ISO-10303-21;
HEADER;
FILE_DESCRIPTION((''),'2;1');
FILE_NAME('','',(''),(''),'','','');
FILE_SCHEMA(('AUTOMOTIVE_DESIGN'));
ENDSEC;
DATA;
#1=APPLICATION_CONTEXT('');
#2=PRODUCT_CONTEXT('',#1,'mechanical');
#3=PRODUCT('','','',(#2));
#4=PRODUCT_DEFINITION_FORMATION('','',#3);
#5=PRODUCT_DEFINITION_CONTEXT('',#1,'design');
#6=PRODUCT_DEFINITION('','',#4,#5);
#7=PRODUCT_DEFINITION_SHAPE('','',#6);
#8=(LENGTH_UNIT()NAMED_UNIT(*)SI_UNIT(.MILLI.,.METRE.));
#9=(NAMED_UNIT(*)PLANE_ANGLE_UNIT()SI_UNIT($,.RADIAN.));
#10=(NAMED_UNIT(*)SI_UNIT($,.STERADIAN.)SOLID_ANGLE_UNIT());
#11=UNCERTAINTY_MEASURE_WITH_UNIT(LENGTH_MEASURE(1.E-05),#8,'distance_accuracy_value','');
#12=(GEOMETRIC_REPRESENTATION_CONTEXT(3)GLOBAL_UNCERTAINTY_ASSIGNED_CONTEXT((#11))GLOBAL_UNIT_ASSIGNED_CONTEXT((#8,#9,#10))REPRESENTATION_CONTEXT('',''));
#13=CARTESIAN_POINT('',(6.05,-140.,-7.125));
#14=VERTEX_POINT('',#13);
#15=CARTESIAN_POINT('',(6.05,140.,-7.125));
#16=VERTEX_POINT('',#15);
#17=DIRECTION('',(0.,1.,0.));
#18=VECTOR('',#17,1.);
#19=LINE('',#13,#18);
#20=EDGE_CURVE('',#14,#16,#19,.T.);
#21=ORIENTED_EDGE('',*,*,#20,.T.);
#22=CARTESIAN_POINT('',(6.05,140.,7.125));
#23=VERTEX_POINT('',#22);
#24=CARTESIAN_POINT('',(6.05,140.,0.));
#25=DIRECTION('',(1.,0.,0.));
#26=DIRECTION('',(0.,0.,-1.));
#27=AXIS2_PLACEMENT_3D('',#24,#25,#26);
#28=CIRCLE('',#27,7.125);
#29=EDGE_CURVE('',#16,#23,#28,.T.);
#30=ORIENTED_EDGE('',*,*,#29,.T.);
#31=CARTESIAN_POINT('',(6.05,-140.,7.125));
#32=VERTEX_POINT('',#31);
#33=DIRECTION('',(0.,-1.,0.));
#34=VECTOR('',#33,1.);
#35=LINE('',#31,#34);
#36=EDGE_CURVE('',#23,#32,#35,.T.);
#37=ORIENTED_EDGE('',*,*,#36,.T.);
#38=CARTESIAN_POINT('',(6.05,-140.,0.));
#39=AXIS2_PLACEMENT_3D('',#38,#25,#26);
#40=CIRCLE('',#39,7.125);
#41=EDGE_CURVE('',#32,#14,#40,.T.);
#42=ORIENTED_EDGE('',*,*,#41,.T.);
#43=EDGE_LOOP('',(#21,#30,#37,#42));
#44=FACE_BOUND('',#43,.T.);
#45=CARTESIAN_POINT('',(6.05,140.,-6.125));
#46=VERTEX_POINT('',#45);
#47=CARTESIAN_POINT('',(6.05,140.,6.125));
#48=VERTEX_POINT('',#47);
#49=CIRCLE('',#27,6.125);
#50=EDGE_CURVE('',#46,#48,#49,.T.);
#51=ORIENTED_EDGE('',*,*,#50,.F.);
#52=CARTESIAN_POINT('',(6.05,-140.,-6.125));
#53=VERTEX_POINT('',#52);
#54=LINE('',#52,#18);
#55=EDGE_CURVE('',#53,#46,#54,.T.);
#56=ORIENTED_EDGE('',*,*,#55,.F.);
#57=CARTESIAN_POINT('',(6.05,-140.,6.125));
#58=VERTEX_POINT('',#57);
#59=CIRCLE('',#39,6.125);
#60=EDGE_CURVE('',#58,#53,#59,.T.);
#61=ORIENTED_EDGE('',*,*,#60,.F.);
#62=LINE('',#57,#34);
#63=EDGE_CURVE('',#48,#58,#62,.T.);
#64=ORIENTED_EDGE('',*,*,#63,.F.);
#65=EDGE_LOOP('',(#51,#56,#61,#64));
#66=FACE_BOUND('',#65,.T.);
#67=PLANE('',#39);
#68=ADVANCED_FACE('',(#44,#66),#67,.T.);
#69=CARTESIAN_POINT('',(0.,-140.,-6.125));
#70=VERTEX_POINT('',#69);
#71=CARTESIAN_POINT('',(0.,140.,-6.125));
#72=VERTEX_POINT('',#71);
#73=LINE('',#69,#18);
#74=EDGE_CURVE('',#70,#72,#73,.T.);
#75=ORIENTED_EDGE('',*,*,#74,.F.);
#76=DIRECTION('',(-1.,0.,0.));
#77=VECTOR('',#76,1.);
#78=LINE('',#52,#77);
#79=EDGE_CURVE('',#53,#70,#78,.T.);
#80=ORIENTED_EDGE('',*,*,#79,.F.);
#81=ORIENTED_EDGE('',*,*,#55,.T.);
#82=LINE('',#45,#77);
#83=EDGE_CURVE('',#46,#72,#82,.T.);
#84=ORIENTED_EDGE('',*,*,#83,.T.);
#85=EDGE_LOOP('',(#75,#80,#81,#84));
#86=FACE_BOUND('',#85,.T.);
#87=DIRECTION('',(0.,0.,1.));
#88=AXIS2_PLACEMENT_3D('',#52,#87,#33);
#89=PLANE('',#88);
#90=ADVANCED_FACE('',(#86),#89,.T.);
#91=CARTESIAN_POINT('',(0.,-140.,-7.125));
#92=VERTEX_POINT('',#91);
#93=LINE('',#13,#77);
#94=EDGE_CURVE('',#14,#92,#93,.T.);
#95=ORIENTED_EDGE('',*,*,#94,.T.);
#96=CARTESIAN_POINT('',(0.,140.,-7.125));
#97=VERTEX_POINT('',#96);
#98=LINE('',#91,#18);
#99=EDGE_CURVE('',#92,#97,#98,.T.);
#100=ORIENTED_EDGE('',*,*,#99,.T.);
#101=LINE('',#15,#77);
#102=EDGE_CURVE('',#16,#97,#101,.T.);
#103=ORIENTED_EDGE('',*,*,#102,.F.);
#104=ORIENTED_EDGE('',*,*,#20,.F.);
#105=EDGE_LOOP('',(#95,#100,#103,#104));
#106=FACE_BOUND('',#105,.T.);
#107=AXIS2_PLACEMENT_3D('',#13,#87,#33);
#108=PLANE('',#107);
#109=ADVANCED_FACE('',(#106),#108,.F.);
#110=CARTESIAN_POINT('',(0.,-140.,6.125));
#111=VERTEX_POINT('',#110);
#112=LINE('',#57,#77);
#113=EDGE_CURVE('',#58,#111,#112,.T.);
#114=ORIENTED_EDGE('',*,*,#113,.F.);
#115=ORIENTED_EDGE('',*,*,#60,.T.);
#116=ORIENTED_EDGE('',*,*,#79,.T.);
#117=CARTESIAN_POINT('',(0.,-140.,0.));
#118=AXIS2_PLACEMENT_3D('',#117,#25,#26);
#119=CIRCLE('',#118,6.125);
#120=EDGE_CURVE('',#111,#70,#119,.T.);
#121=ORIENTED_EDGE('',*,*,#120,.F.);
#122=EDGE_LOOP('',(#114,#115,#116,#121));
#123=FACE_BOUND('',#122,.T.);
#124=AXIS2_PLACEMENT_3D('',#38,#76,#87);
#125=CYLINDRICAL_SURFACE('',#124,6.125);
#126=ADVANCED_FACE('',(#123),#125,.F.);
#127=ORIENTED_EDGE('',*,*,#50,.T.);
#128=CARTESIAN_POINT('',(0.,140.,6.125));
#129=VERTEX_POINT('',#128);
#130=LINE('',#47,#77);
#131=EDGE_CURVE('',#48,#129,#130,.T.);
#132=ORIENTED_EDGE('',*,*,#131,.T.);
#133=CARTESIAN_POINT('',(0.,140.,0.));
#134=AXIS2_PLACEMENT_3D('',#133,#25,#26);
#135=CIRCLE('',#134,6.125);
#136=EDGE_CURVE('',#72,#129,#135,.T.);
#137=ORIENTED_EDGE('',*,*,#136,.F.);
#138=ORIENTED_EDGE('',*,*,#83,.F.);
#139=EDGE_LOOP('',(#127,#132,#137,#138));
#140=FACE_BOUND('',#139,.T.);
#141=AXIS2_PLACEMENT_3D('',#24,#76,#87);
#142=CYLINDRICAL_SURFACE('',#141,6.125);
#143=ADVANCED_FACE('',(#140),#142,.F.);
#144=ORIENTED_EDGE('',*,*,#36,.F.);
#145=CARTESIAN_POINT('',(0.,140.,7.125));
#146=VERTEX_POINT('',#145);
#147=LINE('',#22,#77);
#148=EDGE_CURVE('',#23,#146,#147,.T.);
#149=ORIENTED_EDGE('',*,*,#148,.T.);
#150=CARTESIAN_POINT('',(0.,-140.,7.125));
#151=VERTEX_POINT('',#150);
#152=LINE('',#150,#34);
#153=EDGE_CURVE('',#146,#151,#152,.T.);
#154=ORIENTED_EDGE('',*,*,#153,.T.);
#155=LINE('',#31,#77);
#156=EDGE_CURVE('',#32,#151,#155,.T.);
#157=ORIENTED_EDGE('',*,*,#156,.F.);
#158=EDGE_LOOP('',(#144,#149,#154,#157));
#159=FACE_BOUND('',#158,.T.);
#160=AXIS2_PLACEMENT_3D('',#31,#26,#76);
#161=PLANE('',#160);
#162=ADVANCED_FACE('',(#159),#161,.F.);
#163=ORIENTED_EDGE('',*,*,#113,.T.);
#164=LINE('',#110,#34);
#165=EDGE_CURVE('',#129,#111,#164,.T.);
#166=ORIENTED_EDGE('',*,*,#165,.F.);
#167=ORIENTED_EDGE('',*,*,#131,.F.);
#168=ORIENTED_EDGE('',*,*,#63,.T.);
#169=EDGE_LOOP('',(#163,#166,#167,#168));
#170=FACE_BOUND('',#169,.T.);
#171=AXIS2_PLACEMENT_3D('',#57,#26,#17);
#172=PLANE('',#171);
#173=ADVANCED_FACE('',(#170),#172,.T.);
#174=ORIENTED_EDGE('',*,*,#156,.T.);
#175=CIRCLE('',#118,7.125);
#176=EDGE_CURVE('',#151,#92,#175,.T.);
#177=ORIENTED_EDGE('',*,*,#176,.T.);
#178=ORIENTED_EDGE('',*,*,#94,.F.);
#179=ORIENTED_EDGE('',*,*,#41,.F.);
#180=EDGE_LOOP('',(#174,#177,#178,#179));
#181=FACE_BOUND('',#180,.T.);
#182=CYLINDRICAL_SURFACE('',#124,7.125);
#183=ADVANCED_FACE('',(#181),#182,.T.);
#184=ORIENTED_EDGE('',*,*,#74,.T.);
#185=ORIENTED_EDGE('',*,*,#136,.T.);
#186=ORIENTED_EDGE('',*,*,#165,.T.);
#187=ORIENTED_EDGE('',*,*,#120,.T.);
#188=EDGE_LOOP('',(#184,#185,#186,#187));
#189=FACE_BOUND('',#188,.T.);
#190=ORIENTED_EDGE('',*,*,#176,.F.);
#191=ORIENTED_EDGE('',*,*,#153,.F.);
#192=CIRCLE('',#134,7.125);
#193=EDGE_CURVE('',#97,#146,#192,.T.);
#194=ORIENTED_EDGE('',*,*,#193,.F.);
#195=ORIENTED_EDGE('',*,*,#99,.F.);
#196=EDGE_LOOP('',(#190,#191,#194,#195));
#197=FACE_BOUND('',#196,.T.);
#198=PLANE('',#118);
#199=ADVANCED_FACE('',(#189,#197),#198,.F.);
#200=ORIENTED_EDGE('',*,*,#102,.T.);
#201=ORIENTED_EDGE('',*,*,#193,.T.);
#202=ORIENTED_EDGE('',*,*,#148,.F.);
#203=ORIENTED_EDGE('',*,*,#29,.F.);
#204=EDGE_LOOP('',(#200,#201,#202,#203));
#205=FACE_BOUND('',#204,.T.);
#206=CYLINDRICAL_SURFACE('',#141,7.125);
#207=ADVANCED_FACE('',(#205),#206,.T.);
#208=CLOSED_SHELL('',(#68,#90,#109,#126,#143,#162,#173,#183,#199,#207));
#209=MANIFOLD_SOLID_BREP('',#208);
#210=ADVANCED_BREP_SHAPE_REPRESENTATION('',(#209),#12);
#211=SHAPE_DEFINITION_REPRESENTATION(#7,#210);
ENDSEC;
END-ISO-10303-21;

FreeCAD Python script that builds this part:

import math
import FreeCAD as App
import Part
import Sketcher
from FreeCAD import Vector
Q = App.Units.Quantity

doc = App.newDocument("Part")
body = doc.addObject("PartDesign::Body", "Body")

# Sketch on YZ plane
sketch1 = body.newObject("Sketcher::SketchObject", "Sketch")
sketch1.AttachmentSupport = (doc.getObject("YZ_Plane"), [""])
sketch1.MapMode = "FlatFace"
sketch1.addGeometry(Part.LineSegment(Vector(140, 7, 0), Vector(-140, 7, 0)), False)
sketch1.addGeometry(Part.ArcOfCircle(Part.Circle(Vector(-140, 0, 0), Vector(0, 0, 1), 7), math.radians(90), math.radians(270)), False)
sketch1.addGeometry(Part.LineSegment(Vector(-140, -7, 0), Vector(140, -7, 0)), False)
sketch1.addGeometry(Part.ArcOfCircle(Part.Circle(Vector(140, 0, 0), Vector(0, 0, 1), 7), math.radians(-90), math.radians(90)), False)
sketch1.addGeometry(Part.LineSegment(Vector(-140, 6, 0), Vector(140, 6, 0)), False)
sketch1.addGeometry(Part.ArcOfCircle(Part.Circle(Vector(140, 0, 0), Vector(0, 0, 1), 6), math.radians(-90), math.radians(90)), False)
sketch1.addGeometry(Part.LineSegment(Vector(140, -6, 0), Vector(-140, -6, 0)), False)
sketch1.addGeometry(Part.ArcOfCircle(Part.Circle(Vector(-140, 0, 0), Vector(0, 0, 1), 6), math.radians(90), math.radians(270)), False)
sketch1.addConstraint(Sketcher.Constraint("Tangent", 0, 2, 1, 1))
sketch1.addConstraint(Sketcher.Constraint("Tangent", 1, 2, 2, 1))
sketch1.addConstraint(Sketcher.Constraint("Tangent", 2, 2, 3, 1))
sketch1.addConstraint(Sketcher.Constraint("Tangent", 3, 2, 0, 1))
sketch1.addConstraint(Sketcher.Constraint("Tangent", 4, 2, 5, 2))
sketch1.addConstraint(Sketcher.Constraint("Tangent", 5, 1, 6, 1))
sketch1.addConstraint(Sketcher.Constraint("Tangent", 6, 2, 7, 2))
sketch1.addConstraint(Sketcher.Constraint("Tangent", 7, 1, 4, 1))
sketch1.addConstraint(Sketcher.Constraint("Horizontal", 0))
sketch1.addConstraint(Sketcher.Constraint("Horizontal", 2))
sketch1.addConstraint(Sketcher.Constraint("Horizontal", 4))
sketch1.addConstraint(Sketcher.Constraint("Horizontal", 6))
sketch1.addConstraint(Sketcher.Constraint("Coincident", 5, 3, 3, 3))
sketch1.addConstraint(Sketcher.Constraint("Symmetric", 1, 3, 3, 3, -1, 1))
sketch1.addConstraint(Sketcher.Constraint("Vertical", 7, 3, 0, 2))
sketch1.addConstraint(Sketcher.Constraint("DistanceX", 0, 2, 0, 1, Q("280 mm")))
sketch1.addConstraint(Sketcher.Constraint("Radius", 1, Q("7.125 mm")))
sketch1.addConstraint(Sketcher.Constraint("Radius", 5, Q("6.125 mm")))
pad1 = body.newObject("PartDesign::Pad", "Pad")
pad1.Profile = sketch1
pad1.Length = 6.05

doc.recompute()
